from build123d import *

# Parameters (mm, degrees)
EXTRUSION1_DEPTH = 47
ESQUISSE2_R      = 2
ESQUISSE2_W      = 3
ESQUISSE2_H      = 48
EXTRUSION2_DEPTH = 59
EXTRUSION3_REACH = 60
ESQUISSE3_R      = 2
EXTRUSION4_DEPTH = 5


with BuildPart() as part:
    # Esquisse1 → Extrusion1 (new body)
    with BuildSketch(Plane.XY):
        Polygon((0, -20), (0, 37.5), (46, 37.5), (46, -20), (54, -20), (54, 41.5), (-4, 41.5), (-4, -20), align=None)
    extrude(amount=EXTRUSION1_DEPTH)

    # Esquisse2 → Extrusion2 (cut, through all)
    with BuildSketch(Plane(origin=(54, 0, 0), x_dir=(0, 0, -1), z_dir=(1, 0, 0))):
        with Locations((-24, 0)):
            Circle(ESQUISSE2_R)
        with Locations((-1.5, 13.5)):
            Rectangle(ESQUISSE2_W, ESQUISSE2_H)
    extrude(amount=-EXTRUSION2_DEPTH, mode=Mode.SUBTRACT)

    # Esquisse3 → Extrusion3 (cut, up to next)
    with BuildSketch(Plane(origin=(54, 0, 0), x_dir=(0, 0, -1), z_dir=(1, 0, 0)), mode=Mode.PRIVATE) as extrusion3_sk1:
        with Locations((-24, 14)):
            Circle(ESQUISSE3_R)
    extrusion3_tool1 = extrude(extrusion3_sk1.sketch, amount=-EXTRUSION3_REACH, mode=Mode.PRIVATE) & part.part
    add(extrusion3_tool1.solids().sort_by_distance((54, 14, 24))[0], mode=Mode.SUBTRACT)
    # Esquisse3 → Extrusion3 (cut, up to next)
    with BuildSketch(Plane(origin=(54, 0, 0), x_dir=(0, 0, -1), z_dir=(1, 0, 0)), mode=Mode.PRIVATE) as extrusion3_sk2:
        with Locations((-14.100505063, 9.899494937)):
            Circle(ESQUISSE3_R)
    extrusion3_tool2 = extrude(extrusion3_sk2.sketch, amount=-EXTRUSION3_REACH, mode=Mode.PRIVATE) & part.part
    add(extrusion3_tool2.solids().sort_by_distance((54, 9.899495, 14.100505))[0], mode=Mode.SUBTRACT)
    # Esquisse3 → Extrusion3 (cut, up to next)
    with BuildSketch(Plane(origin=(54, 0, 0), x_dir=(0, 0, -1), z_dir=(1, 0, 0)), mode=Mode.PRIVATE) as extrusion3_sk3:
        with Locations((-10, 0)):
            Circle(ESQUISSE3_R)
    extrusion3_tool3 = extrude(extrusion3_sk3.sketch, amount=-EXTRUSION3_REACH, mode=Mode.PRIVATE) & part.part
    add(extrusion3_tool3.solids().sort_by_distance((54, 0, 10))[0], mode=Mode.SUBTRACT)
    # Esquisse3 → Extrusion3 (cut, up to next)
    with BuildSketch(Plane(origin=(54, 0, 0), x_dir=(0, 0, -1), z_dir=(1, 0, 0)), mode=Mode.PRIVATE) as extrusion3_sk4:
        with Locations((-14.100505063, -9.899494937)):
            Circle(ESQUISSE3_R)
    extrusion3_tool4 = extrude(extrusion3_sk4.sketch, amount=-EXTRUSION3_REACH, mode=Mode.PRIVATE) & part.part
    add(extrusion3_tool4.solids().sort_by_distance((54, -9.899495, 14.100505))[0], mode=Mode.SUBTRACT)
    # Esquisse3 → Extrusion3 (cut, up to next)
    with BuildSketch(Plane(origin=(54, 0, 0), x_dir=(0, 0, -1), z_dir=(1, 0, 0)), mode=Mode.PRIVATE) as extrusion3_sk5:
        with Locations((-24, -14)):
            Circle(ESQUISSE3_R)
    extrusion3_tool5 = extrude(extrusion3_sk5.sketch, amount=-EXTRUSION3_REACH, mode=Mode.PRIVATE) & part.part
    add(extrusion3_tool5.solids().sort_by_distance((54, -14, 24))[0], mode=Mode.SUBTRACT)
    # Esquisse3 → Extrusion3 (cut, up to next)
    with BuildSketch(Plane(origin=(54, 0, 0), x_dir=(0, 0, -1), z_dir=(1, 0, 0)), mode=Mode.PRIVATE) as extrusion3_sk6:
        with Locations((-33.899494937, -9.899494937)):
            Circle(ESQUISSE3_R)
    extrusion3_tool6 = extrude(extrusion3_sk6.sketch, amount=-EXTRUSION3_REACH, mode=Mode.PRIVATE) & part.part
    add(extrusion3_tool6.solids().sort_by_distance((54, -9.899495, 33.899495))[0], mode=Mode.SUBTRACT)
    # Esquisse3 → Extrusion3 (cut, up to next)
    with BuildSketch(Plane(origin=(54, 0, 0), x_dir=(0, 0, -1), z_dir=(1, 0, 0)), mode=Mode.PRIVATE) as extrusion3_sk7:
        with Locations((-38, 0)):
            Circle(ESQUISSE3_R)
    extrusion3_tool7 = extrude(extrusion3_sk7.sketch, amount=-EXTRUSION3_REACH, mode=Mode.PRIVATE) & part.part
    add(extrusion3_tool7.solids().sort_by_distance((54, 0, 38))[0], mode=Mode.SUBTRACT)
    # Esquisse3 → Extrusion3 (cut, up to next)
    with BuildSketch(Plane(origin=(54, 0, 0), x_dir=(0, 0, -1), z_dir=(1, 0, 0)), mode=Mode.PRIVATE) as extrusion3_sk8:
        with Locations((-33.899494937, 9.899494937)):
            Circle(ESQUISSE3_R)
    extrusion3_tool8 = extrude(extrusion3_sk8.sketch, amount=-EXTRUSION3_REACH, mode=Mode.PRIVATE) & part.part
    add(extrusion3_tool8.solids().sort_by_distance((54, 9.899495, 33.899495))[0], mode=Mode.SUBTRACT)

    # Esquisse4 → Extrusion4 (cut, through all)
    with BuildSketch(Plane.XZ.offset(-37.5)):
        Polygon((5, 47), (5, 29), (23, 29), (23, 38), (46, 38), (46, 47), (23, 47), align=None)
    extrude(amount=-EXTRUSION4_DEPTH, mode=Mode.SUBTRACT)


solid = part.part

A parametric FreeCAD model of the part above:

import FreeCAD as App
import Part
import Sketcher


def add_polygon(sketch, points):
    """Adds a closed chain of lines whose ends are joined by coincident constraints."""
    first, n = sketch.GeometryCount, len(points)
    for a, b in zip(points, points[1:] + points[:1]):
        sketch.addGeometry(Part.LineSegment(App.Vector(*a, 0), App.Vector(*b, 0)), False)
    for i in range(n):
        sketch.addConstraint(Sketcher.Constraint("Coincident", first + i, 2, first + (i + 1) % n, 1))

doc = App.newDocument("Part")
body = doc.addObject("PartDesign::Body", "Body")

# Sketch on XY plane
sketch1 = body.newObject("Sketcher::SketchObject", "Sketch")
sketch1.AttachmentSupport = (doc.getObject("XY_Plane"), [""])
sketch1.MapMode = "FlatFace"
add_polygon(sketch1, [(0, -20), (0, 37.5), (46, 37.5), (46, -20), (54, -20), (54, 41.5), (-4, 41.5), (-4, -20)])  # lines 0-7
sketch1.addConstraint([
    Sketcher.Constraint("Vertical", 0),
    Sketcher.Constraint("Horizontal", 1),
    Sketcher.Constraint("Vertical", 2),
    Sketcher.Constraint("Horizontal", 3),
    Sketcher.Constraint("Vertical", 4),
    Sketcher.Constraint("Horizontal", 5),
    Sketcher.Constraint("Vertical", 6),
    Sketcher.Constraint("Horizontal", 7),
    Sketcher.Constraint("PointOnObject", 0, 2, -2),
    Sketcher.Constraint("Horizontal", 3, 2, 6, 2),
    Sketcher.Constraint("DistanceX", 1, 1, 1, 2, 46.0),
    Sketcher.Constraint("DistanceX", 3, 1, 3, 2, 8.0),
    Sketcher.Constraint("DistanceX", 5, 2, 5, 1, 58.0),
    Sketcher.Constraint("DistanceY", 0, 1, 0, 2, 57.5),
    Sketcher.Constraint("DistanceY", 4, 1, 4, 2, 61.5),
    Sketcher.Constraint("DistanceY", 2, 2, -1, 1, 20.0),
])
pad1 = body.newObject("PartDesign::Pad", "Pad")
pad1.Profile = sketch1
pad1.Length = 47

# Sketch on YZ plane
sketch2 = body.newObject("Sketcher::SketchObject", "Sketch001")
sketch2.AttachmentSupport = (doc.getObject("YZ_Plane"), [""])
sketch2.MapMode = "FlatFace"
sketch2.AttachmentOffset = App.Placement(App.Vector(0, 0, 54), App.Rotation())
sketch2.addGeometry(Part.Circle(App.Vector(0, 24, 0), App.Vector(0, 0, 1), 2), False)  # 0
add_polygon(sketch2, [(37.5, 3), (-10.5, 3), (-10.5, 0), (37.5, 0)])  # lines 1-4
sketch2.addConstraint([
    Sketcher.Constraint("Horizontal", 1),
    Sketcher.Constraint("Vertical", 2),
    Sketcher.Constraint("Horizontal", 3),
    Sketcher.Constraint("Vertical", 4),
    Sketcher.Constraint("PointOnObject", 0, 3, -2),
    Sketcher.Constraint("PointOnObject", 2, 2, -1),
    Sketcher.Constraint("Diameter", 0, 4.0),
    Sketcher.Constraint("DistanceX", 1, 2, 1, 1, 48.0),
    Sketcher.Constraint("DistanceY", 2, 2, 2, 1, 3.0),
    Sketcher.Constraint("DistanceY", -1, 1, 0, 3, 24.0),
    Sketcher.Constraint("DistanceX", 1, 2, -1, 1, 10.5),
])
pocket1 = body.newObject("PartDesign::Pocket", "Pocket")
pocket1.Profile = sketch2
pocket1.Type = "ThroughAll"

# Sketch on YZ plane
sketch3 = body.newObject("Sketcher::SketchObject", "Sketch002")
sketch3.AttachmentSupport = (doc.getObject("YZ_Plane"), [""])
sketch3.MapMode = "FlatFace"
sketch3.AttachmentOffset = App.Placement(App.Vector(0, 0, 54), App.Rotation())
sketch3.addGeometry(Part.Circle(App.Vector(14, 24, 0), App.Vector(0, 0, 1), 2), False)
sketch3.addConstraint([
    Sketcher.Constraint("Diameter", 0, 4.0),
    Sketcher.Constraint("DistanceX", -1, 1, 0, 3, 14.0),
    Sketcher.Constraint("DistanceY", -1, 1, 0, 3, 24.0),
])
pocket2 = body.newObject("PartDesign::Pocket", "Pocket001")
pocket2.Profile = sketch3
pocket2.Type = "UpToFirst"

# Sketch on YZ plane
sketch4 = body.newObject("Sketcher::SketchObject", "Sketch003")
sketch4.AttachmentSupport = (doc.getObject("YZ_Plane"), [""])
sketch4.MapMode = "FlatFace"
sketch4.AttachmentOffset = App.Placement(App.Vector(0, 0, 54), App.Rotation())
sketch4.addGeometry(Part.Circle(App.Vector(9.899495, 14.100505, 0), App.Vector(0, 0, 1), 2), False)
sketch4.addConstraint([
    Sketcher.Constraint("Diameter", 0, 4.0),
    Sketcher.Constraint("DistanceX", -1, 1, 0, 3, 9.899495),
    Sketcher.Constraint("DistanceY", -1, 1, 0, 3, 14.100505),
])
pocket3 = body.newObject("PartDesign::Pocket", "Pocket002")
pocket3.Profile = sketch4
pocket3.Type = "UpToFirst"

# Sketch on YZ plane
sketch5 = body.newObject("Sketcher::SketchObject", "Sketch004")
sketch5.AttachmentSupport = (doc.getObject("YZ_Plane"), [""])
sketch5.MapMode = "FlatFace"
sketch5.AttachmentOffset = App.Placement(App.Vector(0, 0, 54), App.Rotation())
sketch5.addGeometry(Part.Circle(App.Vector(0, 10, 0), App.Vector(0, 0, 1), 2), False)
sketch5.addConstraint([
    Sketcher.Constraint("PointOnObject", 0, 3, -2),
    Sketcher.Constraint("Diameter", 0, 4.0),
    Sketcher.Constraint("DistanceY", -1, 1, 0, 3, 10.0),
])
pocket4 = body.newObject("PartDesign::Pocket", "Pocket003")
pocket4.Profile = sketch5
pocket4.Type = "UpToFirst"

# Sketch on YZ plane
sketch6 = body.newObject("Sketcher::SketchObject", "Sketch005")
sketch6.AttachmentSupport = (doc.getObject("YZ_Plane"), [""])
sketch6.MapMode = "FlatFace"
sketch6.AttachmentOffset = App.Placement(App.Vector(0, 0, 54), App.Rotation())
sketch6.addGeometry(Part.Circle(App.Vector(-9.899495, 14.100505, 0), App.Vector(0, 0, 1), 2), False)
sketch6.addConstraint([
    Sketcher.Constraint("Diameter", 0, 4.0),
    Sketcher.Constraint("DistanceX", 0, 3, -1, 1, 9.899495),
    Sketcher.Constraint("DistanceY", -1, 1, 0, 3, 14.100505),
])
pocket5 = body.newObject("PartDesign::Pocket", "Pocket004")
pocket5.Profile = sketch6
pocket5.Type = "UpToFirst"

# Sketch on YZ plane
sketch7 = body.newObject("Sketcher::SketchObject", "Sketch006")
sketch7.AttachmentSupport = (doc.getObject("YZ_Plane"), [""])
sketch7.MapMode = "FlatFace"
sketch7.AttachmentOffset = App.Placement(App.Vector(0, 0, 54), App.Rotation())
sketch7.addGeometry(Part.Circle(App.Vector(-14, 24, 0), App.Vector(0, 0, 1), 2), False)
sketch7.addConstraint([
    Sketcher.Constraint("Diameter", 0, 4.0),
    Sketcher.Constraint("DistanceX", 0, 3, -1, 1, 14.0),
    Sketcher.Constraint("DistanceY", -1, 1, 0, 3, 24.0),
])
pocket6 = body.newObject("PartDesign::Pocket", "Pocket005")
pocket6.Profile = sketch7
pocket6.Type = "UpToFirst"

# Sketch on YZ plane
sketch8 = body.newObject("Sketcher::SketchObject", "Sketch007")
sketch8.AttachmentSupport = (doc.getObject("YZ_Plane"), [""])
sketch8.MapMode = "FlatFace"
sketch8.AttachmentOffset = App.Placement(App.Vector(0, 0, 54), App.Rotation())
sketch8.addGeometry(Part.Circle(App.Vector(-9.899495, 33.899495, 0), App.Vector(0, 0, 1), 2), False)
sketch8.addConstraint([
    Sketcher.Constraint("Diameter", 0, 4.0),
    Sketcher.Constraint("DistanceX", 0, 3, -1, 1, 9.899495),
    Sketcher.Constraint("DistanceY", -1, 1, 0, 3, 33.899495),
])
pocket7 = body.newObject("PartDesign::Pocket", "Pocket006")
pocket7.Profile = sketch8
pocket7.Type = "UpToFirst"

# Sketch on YZ plane
sketch9 = body.newObject("Sketcher::SketchObject", "Sketch008")
sketch9.AttachmentSupport = (doc.getObject("YZ_Plane"), [""])
sketch9.MapMode = "FlatFace"
sketch9.AttachmentOffset = App.Placement(App.Vector(0, 0, 54), App.Rotation())
sketch9.addGeometry(Part.Circle(App.Vector(0, 38, 0), App.Vector(0, 0, 1), 2), False)
sketch9.addConstraint([
    Sketcher.Constraint("PointOnObject", 0, 3, -2),
    Sketcher.Constraint("Diameter", 0, 4.0),
    Sketcher.Constraint("DistanceY", -1, 1, 0, 3, 38.0),
])
pocket8 = body.newObject("PartDesign::Pocket", "Pocket007")
pocket8.Profile = sketch9
pocket8.Type = "UpToFirst"

# Sketch on YZ plane
sketch10 = body.newObject("Sketcher::SketchObject", "Sketch009")
sketch10.AttachmentSupport = (doc.getObject("YZ_Plane"), [""])
sketch10.MapMode = "FlatFace"
sketch10.AttachmentOffset = App.Placement(App.Vector(0, 0, 54), App.Rotation())
sketch10.addGeometry(Part.Circle(App.Vector(9.899495, 33.899495, 0), App.Vector(0, 0, 1), 2), False)
sketch10.addConstraint([
    Sketcher.Constraint("Diameter", 0, 4.0),
    Sketcher.Constraint("DistanceX", -1, 1, 0, 3, 9.899495),
    Sketcher.Constraint("DistanceY", -1, 1, 0, 3, 33.899495),
])
pocket9 = body.newObject("PartDesign::Pocket", "Pocket008")
pocket9.Profile = sketch10
pocket9.Type = "UpToFirst"

# Sketch on XZ plane
sketch11 = body.newObject("Sketcher::SketchObject", "Sketch010")
sketch11.AttachmentSupport = (doc.getObject("XZ_Plane"), [""])
sketch11.MapMode = "FlatFace"
sketch11.AttachmentOffset = App.Placement(App.Vector(0, 0, -37.5), App.Rotation())
add_polygon(sketch11, [(5, 47), (5, 29), (23, 29), (23, 38), (46, 38), (46, 47)])  # lines 0-5
sketch11.addConstraint([
    Sketcher.Constraint("Vertical", 0),
    Sketcher.Constraint("Horizontal", 1),
    Sketcher.Constraint("Vertical", 2),
    Sketcher.Constraint("Horizontal", 3),
    Sketcher.Constraint("Vertical", 4),
    Sketcher.Constraint("Horizontal", 5),
    Sketcher.Constraint("Equal", 1, 0),
    Sketcher.Constraint("Equal", 2, 4),
    Sketcher.Constraint("DistanceX", 1, 1, 1, 2, 18.0),
    Sketcher.Constraint("DistanceX", 3, 1, 3, 2, 23.0),
    Sketcher.Constraint("DistanceX", -1, 1, 0, 2, 5.0),
    Sketcher.Constraint("DistanceY", -1, 1, 0, 2, 29.0),
])
pocket10 = body.newObject("PartDesign::Pocket", "Pocket009")
pocket10.Profile = sketch11
pocket10.Type = "ThroughAll"

doc.recompute()
